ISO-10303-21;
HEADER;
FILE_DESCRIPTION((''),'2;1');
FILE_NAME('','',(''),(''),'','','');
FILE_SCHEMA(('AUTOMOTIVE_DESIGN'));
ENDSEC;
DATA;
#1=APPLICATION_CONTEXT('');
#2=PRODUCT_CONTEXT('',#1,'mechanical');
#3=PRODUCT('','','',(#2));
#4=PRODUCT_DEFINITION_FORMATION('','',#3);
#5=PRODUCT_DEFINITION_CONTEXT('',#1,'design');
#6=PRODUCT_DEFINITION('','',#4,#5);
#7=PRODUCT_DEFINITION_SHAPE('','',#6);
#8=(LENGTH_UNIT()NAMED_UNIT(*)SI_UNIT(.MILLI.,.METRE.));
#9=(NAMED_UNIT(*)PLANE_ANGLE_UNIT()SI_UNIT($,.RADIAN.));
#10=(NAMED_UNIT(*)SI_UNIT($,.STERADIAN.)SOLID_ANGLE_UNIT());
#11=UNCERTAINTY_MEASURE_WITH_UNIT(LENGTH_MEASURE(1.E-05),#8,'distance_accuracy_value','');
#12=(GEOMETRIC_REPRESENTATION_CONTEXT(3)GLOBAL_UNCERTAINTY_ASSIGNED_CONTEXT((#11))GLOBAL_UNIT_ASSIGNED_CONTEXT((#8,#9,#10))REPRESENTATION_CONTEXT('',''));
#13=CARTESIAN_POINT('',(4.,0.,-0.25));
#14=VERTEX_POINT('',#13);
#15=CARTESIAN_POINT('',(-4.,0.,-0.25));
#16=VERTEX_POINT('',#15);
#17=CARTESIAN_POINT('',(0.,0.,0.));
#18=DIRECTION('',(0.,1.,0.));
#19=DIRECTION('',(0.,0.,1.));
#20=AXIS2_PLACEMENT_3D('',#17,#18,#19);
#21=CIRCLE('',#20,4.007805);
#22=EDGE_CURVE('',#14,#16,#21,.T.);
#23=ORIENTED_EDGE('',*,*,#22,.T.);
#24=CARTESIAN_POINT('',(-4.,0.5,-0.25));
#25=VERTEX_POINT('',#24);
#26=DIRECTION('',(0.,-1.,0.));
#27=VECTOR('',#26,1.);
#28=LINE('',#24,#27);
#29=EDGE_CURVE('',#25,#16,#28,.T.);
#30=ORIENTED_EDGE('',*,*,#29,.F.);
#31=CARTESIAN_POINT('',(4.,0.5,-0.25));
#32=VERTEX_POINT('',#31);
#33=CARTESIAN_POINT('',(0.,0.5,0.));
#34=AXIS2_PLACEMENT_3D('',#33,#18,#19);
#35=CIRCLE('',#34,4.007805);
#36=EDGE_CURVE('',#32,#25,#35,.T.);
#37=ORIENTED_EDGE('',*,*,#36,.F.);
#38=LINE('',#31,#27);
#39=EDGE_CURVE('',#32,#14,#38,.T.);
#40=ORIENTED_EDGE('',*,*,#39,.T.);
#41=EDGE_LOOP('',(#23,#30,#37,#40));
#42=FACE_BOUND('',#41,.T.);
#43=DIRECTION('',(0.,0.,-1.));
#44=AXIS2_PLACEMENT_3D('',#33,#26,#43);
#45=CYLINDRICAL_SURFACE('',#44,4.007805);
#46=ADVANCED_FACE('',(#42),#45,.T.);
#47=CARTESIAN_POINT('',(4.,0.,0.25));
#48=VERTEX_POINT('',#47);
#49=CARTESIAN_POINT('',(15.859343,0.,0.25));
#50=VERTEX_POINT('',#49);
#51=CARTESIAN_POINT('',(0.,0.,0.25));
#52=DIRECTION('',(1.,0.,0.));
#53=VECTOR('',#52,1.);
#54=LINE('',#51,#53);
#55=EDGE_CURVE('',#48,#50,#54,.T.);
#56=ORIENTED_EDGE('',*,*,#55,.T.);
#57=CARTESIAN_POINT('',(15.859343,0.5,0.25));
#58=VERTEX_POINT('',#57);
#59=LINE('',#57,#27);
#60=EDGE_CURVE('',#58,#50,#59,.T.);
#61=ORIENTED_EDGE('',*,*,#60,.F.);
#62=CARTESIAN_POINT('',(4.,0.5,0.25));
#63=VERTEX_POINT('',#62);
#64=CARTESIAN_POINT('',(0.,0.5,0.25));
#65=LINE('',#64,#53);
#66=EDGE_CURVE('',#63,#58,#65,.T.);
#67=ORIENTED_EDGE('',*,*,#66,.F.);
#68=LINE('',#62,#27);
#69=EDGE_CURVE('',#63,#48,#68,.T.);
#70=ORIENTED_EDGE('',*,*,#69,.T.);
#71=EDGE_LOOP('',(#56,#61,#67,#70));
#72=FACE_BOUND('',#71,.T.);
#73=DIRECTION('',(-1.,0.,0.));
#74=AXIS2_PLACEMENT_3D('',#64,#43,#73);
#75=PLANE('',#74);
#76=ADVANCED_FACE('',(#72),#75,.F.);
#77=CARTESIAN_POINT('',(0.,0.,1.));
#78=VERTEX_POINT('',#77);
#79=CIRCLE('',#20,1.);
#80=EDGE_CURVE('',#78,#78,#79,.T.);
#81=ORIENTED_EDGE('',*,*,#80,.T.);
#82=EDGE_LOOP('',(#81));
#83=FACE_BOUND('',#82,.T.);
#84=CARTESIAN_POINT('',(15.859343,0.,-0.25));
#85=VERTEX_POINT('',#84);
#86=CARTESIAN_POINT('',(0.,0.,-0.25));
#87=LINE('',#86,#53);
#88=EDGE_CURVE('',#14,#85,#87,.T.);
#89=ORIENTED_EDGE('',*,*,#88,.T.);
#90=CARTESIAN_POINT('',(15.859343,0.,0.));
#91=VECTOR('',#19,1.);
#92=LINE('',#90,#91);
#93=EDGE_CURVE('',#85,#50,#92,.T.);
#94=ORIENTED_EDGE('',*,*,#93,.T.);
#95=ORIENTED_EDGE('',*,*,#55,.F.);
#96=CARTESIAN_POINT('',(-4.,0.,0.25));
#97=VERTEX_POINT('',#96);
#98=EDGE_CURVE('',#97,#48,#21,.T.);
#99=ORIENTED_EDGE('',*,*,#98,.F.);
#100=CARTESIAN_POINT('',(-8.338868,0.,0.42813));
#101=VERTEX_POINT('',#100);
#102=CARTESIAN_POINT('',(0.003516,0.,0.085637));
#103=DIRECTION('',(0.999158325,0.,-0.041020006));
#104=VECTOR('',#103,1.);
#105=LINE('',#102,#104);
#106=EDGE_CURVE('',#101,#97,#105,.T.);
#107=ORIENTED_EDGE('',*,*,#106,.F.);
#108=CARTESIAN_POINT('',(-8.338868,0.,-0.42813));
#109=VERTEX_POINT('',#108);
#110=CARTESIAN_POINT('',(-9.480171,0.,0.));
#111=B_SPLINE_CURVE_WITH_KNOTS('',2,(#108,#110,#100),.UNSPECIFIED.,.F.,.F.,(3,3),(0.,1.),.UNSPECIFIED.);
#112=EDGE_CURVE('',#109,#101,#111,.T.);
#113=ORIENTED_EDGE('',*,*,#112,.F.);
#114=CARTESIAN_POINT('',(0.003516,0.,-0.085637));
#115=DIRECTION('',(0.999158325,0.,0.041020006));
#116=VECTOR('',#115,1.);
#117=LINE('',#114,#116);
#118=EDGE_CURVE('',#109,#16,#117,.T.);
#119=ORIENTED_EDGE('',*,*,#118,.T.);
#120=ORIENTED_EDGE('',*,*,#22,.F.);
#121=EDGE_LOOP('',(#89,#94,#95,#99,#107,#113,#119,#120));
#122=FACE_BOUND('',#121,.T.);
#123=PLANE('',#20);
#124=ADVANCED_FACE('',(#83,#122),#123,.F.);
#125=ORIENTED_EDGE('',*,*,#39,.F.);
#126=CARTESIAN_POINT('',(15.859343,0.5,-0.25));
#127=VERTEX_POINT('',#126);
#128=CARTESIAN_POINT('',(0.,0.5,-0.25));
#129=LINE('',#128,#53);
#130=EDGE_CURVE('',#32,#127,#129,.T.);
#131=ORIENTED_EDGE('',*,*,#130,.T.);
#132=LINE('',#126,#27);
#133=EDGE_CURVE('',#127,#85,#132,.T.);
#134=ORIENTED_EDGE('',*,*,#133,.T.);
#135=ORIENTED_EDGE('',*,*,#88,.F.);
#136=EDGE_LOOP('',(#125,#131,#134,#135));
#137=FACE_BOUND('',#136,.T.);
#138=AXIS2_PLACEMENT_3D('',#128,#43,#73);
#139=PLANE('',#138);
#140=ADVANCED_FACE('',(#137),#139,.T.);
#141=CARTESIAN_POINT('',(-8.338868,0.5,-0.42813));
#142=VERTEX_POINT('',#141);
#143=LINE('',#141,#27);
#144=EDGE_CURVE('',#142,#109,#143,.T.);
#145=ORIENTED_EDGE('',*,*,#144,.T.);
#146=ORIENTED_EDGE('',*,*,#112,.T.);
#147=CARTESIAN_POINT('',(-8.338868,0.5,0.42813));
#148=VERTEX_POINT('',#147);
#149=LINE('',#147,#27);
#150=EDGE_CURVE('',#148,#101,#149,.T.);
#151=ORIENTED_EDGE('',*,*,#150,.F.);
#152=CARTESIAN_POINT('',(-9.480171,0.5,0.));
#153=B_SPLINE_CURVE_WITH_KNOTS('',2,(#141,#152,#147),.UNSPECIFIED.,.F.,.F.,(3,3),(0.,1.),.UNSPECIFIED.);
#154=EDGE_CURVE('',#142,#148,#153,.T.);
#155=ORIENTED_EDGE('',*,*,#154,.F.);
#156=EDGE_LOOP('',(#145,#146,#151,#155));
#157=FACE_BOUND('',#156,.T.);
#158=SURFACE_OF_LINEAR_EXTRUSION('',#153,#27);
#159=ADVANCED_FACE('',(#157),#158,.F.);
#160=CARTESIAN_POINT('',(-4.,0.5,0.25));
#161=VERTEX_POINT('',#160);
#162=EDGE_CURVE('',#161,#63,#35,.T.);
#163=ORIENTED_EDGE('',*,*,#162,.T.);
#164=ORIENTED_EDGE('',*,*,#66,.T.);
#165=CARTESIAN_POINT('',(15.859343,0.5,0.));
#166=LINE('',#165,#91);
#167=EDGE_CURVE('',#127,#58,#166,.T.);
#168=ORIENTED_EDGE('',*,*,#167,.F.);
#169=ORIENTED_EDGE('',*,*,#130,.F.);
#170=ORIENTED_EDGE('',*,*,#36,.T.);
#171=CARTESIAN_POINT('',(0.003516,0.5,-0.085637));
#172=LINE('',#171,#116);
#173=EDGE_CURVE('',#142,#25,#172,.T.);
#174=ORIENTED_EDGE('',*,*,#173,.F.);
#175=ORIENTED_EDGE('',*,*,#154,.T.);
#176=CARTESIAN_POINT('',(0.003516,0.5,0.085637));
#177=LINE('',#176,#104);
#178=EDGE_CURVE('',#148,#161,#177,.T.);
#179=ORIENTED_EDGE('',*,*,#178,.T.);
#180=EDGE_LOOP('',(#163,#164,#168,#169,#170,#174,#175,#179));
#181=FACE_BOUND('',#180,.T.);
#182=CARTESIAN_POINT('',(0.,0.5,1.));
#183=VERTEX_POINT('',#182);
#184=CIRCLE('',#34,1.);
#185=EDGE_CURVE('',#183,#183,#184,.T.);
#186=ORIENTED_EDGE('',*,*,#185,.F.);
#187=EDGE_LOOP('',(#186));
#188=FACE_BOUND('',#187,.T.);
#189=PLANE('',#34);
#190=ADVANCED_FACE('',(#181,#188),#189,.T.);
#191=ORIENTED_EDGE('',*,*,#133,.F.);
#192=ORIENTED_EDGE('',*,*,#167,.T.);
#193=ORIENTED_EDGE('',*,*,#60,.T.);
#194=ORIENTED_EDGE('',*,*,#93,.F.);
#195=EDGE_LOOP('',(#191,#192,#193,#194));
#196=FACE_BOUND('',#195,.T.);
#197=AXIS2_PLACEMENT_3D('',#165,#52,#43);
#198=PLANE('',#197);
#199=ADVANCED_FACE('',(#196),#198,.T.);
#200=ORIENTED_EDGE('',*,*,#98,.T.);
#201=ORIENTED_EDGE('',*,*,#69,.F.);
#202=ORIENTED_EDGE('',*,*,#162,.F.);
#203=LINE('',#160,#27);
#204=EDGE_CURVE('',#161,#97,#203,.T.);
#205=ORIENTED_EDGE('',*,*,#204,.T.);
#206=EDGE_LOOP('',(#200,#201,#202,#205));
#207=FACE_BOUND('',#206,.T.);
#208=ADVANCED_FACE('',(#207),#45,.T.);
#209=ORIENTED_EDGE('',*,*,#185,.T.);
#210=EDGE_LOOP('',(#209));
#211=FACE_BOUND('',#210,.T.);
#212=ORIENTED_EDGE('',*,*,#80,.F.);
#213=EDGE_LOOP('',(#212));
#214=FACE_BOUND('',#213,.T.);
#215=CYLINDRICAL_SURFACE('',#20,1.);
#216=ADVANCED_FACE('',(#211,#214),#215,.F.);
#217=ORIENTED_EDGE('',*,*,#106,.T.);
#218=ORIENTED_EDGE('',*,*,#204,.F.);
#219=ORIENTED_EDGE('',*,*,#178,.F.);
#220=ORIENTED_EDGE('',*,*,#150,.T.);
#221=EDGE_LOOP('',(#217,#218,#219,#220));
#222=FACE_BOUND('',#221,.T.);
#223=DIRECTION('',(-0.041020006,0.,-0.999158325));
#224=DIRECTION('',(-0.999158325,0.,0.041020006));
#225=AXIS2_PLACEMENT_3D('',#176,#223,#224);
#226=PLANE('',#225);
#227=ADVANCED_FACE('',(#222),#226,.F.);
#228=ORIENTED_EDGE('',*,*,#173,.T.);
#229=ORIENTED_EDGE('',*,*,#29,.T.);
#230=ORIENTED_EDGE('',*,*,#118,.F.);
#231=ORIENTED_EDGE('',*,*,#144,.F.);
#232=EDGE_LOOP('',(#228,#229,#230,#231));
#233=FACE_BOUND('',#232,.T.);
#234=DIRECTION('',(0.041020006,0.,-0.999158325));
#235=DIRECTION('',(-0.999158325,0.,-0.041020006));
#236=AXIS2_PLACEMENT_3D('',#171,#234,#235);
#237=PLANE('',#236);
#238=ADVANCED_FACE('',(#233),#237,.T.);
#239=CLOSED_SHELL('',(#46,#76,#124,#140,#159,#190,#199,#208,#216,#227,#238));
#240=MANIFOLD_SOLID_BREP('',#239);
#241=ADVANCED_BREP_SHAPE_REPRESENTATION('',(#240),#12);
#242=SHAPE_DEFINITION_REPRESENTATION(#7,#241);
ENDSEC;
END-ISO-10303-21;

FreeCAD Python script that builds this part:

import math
import FreeCAD as App
import Part
import Sketcher
from FreeCAD import Vector
Q = App.Units.Quantity

doc = App.newDocument("Part")
body = doc.addObject("PartDesign::Body", "Body")

sketch1 = body.newObject("Sketcher::SketchObject", "Sketch")
sketch1.AttachmentSupport = (doc.getObject("XZ_Plane"), [""])
sketch1.MapMode = "FlatFace"
sketch1.addGeometry([
    Part.LineSegment(Vector(15.859343, -0.25, 0), Vector(4, -0.25, 0)),
    Part.ArcOfCircle(Part.Circle(Vector(0, 0, 0), Vector(0, 0, 1), 4.007805), math.radians(-176.423666), math.radians(-3.576334)),
    Part.LineSegment(Vector(-4, -0.25, 0), Vector(-8.338868, -0.42813, 0)),
    Part.BSplineCurve([Vector(-8.338868, -0.42813, 0), Vector(-9.480171, 0, 0), Vector(-8.338868, 0.42813, 0)], [3, 3], [0, 1], False, 2, [1, 1, 1], False),
    Part.LineSegment(Vector(-8.338868, 0.42813, 0), Vector(-4, 0.25, 0)),
    Part.ArcOfCircle(Part.Circle(Vector(0, 0, 0), Vector(0, 0, 1), 4.007805), math.radians(3.576334), math.radians(176.423666)),
    Part.LineSegment(Vector(4, 0.25, 0), Vector(15.859343, 0.25, 0)),
    Part.LineSegment(Vector(15.859343, 0.25, 0), Vector(15.859343, -0.25, 0)),
], False)
sketch1.addConstraint([
    Sketcher.Constraint("Block", 3),
    Sketcher.Constraint("Coincident", 0, 2, 1, 2),
    Sketcher.Constraint("Coincident", 1, 1, 2, 1),
    Sketcher.Constraint("Coincident", 2, 2, 3, 1),
    Sketcher.Constraint("Coincident", 3, 2, 4, 1),
    Sketcher.Constraint("Coincident", 4, 2, 5, 2),
    Sketcher.Constraint("Coincident", 5, 1, 6, 1),
    Sketcher.Constraint("Coincident", 6, 2, 7, 1),
    Sketcher.Constraint("Coincident", 7, 2, 0, 1),
    Sketcher.Constraint("Horizontal", 0),
    Sketcher.Constraint("Horizontal", 6),
    Sketcher.Constraint("Vertical", 7),
    Sketcher.Constraint("Coincident", 1, 3, -1, 1),
    Sketcher.Constraint("Coincident", 5, 3, -1, 1),
    Sketcher.Constraint("Equal", 1, 5),
    Sketcher.Constraint("Horizontal", 0, 2, 1, 1),
    Sketcher.Constraint("Horizontal", 4, 2, 5, 1),
    Sketcher.Constraint("Vertical", 1, 1, 4, 2),
    Sketcher.Constraint("DistanceY", 7, 2, 7, 1, Q("0.5 mm")),
    Sketcher.Constraint("DistanceX", -1, 1, 0, 2, Q("4 mm")),
    Sketcher.Constraint("DistanceX", 0, 2, 0, 1, Q("11.859343 mm")),
])
pad1 = body.newObject("PartDesign::Pad", "Pad")
pad1.Profile = sketch1
pad1.Length = 0.5
pad1.Reversed = True

sketch2 = body.newObject("Sketcher::SketchObject", "Sketch001")
sketch2.AttachmentSupport = (doc.getObject("XZ_Plane"), [""])
sketch2.MapMode = "FlatFace"
sketch2.AttachmentOffset = App.Placement(Vector(0, 0, -0.5), App.Rotation())
sketch2.addGeometry(Part.Circle(Vector(0, 0, 0), Vector(0, 0, 1), 1), False)
sketch2.addConstraint([
    Sketcher.Constraint("Coincident", 0, 3, -1, 1),
    Sketcher.Constraint("Diameter", 0, Q("2 mm")),
])
pocket1 = body.newObject("PartDesign::Pocket", "Pocket")
pocket1.Profile = sketch2
pocket1.Type = "ThroughAll"
pocket1.Reversed = True

doc.recompute()
